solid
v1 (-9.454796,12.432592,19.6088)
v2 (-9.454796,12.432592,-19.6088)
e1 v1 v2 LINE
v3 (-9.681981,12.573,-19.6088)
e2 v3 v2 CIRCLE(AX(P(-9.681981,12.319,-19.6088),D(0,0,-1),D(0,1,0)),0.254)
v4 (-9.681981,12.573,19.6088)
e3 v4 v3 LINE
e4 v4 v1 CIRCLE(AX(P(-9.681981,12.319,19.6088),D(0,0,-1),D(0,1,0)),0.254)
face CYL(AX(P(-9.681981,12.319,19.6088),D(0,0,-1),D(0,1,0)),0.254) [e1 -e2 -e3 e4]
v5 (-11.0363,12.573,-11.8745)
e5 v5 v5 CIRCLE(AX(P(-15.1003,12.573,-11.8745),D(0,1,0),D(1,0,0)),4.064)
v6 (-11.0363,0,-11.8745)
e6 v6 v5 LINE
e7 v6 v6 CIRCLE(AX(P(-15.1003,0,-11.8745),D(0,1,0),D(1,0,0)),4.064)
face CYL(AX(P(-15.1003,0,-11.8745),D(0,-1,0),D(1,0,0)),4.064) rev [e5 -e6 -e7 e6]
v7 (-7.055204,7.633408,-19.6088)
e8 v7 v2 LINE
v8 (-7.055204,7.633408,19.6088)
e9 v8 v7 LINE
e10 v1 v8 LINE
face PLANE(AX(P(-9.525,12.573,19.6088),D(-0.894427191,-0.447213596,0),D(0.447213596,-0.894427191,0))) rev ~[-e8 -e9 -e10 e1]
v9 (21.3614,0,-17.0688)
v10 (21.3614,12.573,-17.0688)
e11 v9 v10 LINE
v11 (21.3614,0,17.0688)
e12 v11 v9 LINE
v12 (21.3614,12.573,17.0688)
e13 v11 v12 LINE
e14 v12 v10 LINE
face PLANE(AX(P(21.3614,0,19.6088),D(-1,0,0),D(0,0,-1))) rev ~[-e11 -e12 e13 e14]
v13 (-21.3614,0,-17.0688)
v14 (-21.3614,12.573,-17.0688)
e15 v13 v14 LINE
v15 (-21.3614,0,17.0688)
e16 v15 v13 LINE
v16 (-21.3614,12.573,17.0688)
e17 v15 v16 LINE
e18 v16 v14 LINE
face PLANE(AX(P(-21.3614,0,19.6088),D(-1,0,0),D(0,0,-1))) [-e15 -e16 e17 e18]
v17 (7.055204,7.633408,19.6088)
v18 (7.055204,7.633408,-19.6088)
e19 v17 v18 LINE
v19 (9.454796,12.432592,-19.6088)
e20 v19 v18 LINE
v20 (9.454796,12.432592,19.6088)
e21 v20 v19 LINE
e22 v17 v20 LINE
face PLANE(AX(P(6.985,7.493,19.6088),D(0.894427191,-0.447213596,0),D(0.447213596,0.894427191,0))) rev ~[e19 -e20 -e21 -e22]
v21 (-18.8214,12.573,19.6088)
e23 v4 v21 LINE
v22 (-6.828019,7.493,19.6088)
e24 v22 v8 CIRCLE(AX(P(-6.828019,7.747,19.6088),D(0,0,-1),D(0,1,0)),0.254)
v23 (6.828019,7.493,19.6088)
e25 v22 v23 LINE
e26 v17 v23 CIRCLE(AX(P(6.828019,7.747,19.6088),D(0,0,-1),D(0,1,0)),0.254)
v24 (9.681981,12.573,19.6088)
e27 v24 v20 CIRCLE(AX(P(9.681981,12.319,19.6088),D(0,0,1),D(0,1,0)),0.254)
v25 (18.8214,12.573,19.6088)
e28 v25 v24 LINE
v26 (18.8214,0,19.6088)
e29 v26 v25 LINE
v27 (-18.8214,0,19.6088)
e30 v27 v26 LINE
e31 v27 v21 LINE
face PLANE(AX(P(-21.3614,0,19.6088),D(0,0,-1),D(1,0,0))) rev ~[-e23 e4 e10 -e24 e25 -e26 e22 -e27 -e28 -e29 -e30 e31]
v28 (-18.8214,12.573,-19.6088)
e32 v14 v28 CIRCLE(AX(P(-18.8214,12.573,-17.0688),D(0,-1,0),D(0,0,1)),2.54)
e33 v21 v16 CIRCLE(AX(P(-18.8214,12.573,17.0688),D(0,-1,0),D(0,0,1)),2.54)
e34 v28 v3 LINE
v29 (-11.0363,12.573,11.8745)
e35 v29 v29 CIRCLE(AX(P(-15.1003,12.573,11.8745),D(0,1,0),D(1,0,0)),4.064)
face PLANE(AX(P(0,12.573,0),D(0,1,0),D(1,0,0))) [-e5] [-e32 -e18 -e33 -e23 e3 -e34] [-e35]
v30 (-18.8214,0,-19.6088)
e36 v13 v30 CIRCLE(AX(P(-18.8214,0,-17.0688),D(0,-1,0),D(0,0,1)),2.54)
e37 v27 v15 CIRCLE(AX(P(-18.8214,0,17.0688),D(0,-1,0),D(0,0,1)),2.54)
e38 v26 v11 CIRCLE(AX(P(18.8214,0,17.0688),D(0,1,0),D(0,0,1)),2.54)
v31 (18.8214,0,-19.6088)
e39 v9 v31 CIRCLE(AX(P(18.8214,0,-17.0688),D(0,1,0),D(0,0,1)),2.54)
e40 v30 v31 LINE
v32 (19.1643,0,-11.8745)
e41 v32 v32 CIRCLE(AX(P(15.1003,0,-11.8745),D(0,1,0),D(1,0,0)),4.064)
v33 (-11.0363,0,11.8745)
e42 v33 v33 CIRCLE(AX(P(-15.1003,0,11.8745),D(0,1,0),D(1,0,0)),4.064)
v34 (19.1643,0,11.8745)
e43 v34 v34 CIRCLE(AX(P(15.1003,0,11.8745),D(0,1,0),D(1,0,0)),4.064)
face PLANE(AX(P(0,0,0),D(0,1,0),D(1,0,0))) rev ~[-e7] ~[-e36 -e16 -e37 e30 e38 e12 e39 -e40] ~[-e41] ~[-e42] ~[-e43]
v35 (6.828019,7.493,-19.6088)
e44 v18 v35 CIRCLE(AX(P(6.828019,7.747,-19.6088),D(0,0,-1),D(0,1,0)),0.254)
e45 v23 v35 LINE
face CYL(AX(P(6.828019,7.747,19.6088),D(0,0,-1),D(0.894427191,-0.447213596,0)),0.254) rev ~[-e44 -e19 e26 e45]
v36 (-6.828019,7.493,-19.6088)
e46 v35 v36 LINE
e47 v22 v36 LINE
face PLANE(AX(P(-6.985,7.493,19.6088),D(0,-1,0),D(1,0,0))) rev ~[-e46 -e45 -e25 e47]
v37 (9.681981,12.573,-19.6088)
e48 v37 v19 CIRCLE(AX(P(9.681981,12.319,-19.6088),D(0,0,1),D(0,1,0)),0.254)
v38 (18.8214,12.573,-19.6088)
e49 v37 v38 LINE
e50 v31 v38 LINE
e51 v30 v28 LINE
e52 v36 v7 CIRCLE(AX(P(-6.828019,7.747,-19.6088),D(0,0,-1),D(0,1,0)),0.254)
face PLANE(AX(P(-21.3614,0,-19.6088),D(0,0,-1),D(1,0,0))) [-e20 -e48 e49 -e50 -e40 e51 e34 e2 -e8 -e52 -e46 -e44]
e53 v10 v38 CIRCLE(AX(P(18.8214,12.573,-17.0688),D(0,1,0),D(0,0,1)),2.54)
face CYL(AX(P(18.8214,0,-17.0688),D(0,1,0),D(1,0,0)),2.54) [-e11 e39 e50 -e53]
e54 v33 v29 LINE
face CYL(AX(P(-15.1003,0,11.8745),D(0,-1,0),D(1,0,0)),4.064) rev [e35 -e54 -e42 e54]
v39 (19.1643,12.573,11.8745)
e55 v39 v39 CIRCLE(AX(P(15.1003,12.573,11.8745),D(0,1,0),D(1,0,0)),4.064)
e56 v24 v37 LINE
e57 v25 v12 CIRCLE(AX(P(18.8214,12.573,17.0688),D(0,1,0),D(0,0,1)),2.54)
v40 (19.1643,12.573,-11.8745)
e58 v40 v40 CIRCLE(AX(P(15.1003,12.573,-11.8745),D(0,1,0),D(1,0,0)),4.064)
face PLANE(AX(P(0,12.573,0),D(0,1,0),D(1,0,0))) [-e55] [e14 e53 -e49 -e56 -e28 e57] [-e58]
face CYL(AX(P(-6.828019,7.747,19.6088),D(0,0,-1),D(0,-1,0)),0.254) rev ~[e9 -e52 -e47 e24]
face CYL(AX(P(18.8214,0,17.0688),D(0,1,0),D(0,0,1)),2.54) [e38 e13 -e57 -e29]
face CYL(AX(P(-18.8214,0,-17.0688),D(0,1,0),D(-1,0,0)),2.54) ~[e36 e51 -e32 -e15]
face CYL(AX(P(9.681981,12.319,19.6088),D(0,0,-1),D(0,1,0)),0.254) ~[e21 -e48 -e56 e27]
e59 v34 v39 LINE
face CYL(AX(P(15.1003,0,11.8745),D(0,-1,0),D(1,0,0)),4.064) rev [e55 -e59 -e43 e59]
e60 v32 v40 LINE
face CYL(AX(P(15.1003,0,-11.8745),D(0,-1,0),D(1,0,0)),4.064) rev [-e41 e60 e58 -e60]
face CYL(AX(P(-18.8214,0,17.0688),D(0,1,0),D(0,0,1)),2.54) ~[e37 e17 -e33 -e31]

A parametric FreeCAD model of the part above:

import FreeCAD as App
import Part
import Sketcher
from FreeCAD import Vector
Q = App.Units.Quantity


def edges_at(feature, points):
    """Names of the edges that pass closest to the given points."""
    edges = feature.Shape.Edges
    near = lambda p: min(range(len(edges)), key=lambda i: edges[i].distToShape(Part.Vertex(*p))[0])
    return sorted({f"Edge{near(p) + 1}" for p in points})


def add_polygon(sketch, points):
    """Adds a closed chain of lines whose ends are joined by coincident constraints."""
    first, n = sketch.GeometryCount, len(points)
    for a, b in zip(points, points[1:] + points[:1]):
        sketch.addGeometry(Part.LineSegment(App.Vector(*a, 0), App.Vector(*b, 0)), False)
    for i in range(n):
        sketch.addConstraint(Sketcher.Constraint("Coincident", first + i, 2, first + (i + 1) % n, 1))

doc = App.newDocument("Part")
body = doc.addObject("PartDesign::Body", "Body")

# Sketch on XZ plane
sketch1 = body.newObject("Sketcher::SketchObject", "Sketch")
sketch1.AttachmentSupport = (doc.getObject("XZ_Plane"), [""])
sketch1.MapMode = "FlatFace"
add_polygon(sketch1, [(-21.4, -19.6), (-21.4, 19.6), (21.4, 19.6), (21.4, -19.6)])  # lines 0-3
sketch1.addGeometry(Part.Circle(Vector(-15.1, 11.9, 0), Vector(0, 0, 1), 4.1), False)  # 4
sketch1.addGeometry(Part.Circle(Vector(15.1, 11.9, 0), Vector(0, 0, 1), 4.1), False)  # 5
sketch1.addGeometry(Part.Circle(Vector(-15.1, -11.9, 0), Vector(0, 0, 1), 4.1), False)  # 6
sketch1.addGeometry(Part.Circle(Vector(15.1, -11.9, 0), Vector(0, 0, 1), 4.1), False)  # 7
sketch1.addConstraint([
    Sketcher.Constraint("Vertical", 0),
    Sketcher.Constraint("Horizontal", 1),
    Sketcher.Constraint("Vertical", 2),
    Sketcher.Constraint("Horizontal", 3),
    Sketcher.Constraint("Equal", 4, 5),
    Sketcher.Constraint("Equal", 5, 6),
    Sketcher.Constraint("Equal", 6, 7),
    Sketcher.Constraint("Symmetric", 5, 3, 6, 3, -1, 1),
    Sketcher.Constraint("Symmetric", 4, 3, 7, 3, -1, 1),
    Sketcher.Constraint("Symmetric", 0, 2, 2, 2, -1, 1),
    Sketcher.Constraint("Symmetric", 4, 3, 5, 3, -2),
    Sketcher.Constraint("Diameter", 4, Q("0.32 in")),
    Sketcher.Constraint("DistanceX", 1, 1, 1, 2, Q("1.682 in")),
    Sketcher.Constraint("DistanceY", 0, 1, 0, 2, Q("1.544 in")),
    Sketcher.Constraint("DistanceX", 4, 3, 5, 3, Q("1.189 in")),
    Sketcher.Constraint("DistanceY", 6, 3, 4, 3, Q("0.935 in")),
])
pad1 = body.newObject("PartDesign::Pad", "Pad")
pad1.Profile = sketch1
pad1.Length = Q("0.495 in")
pad1.Reversed = True

# Sketch on XY plane
sketch2 = body.newObject("Sketcher::SketchObject", "Sketch001")
sketch2.AttachmentSupport = (doc.getObject("XY_Plane"), [""])
sketch2.MapMode = "FlatFace"
sketch2.AttachmentOffset = App.Placement(Vector(0, 0, 0.772 * 25.4), App.Rotation())
add_polygon(sketch2, [(-10, 13), (-7, 7), (7, 7), (10, 13)])  # lines 0-3
sketch2.addConstraint([
    Sketcher.Constraint("Horizontal", 1),
    Sketcher.Constraint("Horizontal", 3),
    Sketcher.Constraint("Equal", 0, 2),
    Sketcher.Constraint("DistanceX", 1, 1, 1, 2, Q("0.55 in")),
    Sketcher.Constraint("DistanceX", 3, 2, 3, 1, Q("0.75 in")),
    Sketcher.Constraint("DistanceY", 1, 2, 2, 2, Q("0.2 in")),
    Sketcher.Constraint("DistanceX", 0, 2, -1, 1, Q("0.275 in")),
    Sketcher.Constraint("DistanceY", -1, 1, 0, 2, Q("0.295 in")),
])
pocket1 = body.newObject("PartDesign::Pocket", "Pocket")
pocket1.Profile = sketch2
pocket1.Type = "ThroughAll"
pocket1.Midplane = True
doc.recompute()

fillet = body.newObject("PartDesign::Fillet", "Fillet")
fillet.Base = (pocket1, edges_at(pocket1, [
    (-9.525, 12.573, 0),
    (9.525, 12.573, 0),
    (6.985, 7.493, 0),
    (-6.985, 7.493, 0),
]))
fillet.Radius = Q("0.01 in")
doc.recompute()

fillet2 = body.newObject("PartDesign::Fillet", "Fillet001")
fillet2.Base = (fillet, edges_at(fillet, [
    (21.361, 6.287, 19.609),
    (-21.361, 6.287, 19.609),
    (-21.361, 6.287, -19.609),
    (21.361, 6.287, -19.609),
]))
fillet2.Radius = Q("0.1 in")

doc.recompute()
